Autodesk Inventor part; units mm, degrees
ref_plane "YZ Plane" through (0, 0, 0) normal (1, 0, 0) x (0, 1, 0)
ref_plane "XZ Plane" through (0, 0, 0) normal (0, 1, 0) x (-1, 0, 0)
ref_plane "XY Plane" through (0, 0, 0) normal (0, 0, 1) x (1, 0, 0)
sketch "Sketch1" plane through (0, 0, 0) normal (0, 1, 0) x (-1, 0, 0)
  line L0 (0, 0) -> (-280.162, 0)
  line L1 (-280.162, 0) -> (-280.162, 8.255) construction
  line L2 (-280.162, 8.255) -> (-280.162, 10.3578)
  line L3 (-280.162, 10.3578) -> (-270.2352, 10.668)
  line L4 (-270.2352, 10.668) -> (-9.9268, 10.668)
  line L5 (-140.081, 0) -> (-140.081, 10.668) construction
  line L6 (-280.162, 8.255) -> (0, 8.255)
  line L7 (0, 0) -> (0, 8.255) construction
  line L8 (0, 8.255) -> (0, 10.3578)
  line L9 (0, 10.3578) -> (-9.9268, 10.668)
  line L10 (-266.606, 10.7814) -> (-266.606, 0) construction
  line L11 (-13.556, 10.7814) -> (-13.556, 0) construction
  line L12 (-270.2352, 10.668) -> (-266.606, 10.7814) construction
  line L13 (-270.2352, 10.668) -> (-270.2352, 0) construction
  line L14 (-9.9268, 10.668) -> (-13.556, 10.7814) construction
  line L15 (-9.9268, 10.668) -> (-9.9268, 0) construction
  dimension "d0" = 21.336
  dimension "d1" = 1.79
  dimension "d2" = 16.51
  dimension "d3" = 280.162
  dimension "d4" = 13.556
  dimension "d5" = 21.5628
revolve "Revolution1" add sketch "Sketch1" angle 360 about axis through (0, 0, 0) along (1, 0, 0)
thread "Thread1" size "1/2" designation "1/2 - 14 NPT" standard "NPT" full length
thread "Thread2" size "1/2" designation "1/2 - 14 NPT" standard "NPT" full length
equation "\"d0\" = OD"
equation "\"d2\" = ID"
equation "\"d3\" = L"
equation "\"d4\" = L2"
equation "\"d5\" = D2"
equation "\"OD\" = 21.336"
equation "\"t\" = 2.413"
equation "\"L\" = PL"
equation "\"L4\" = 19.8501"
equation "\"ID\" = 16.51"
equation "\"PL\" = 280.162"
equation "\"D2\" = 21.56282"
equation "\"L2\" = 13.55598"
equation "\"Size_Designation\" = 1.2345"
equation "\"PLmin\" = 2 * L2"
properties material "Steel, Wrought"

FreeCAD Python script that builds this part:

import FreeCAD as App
import Part
import Sketcher

V = App.Vector
Q = App.Units.Quantity


def add_polygon(sketch, points):
    """Adds a closed chain of lines whose ends are joined by coincident constraints."""
    first, n = sketch.GeometryCount, len(points)
    for a, b in zip(points, points[1:] + points[:1]):
        sketch.addGeometry(Part.LineSegment(App.Vector(*a, 0), App.Vector(*b, 0)), False)
    for i in range(n):
        sketch.addConstraint(Sketcher.Constraint("Coincident", first + i, 2, first + (i + 1) % n, 1))

doc = App.newDocument("Part")
body = doc.addObject("PartDesign::Body", "Body")

sketch1 = body.newObject("Sketcher::SketchObject", "Sketch")
sketch1.AttachmentSupport = (doc.getObject("XZ_Plane"), [""])
sketch1.MapMode = "FlatFace"
add_polygon(sketch1, [(280.2, 10.4), (280.2, 8.3), (0, 8.3), (0, 10.4), (9.9, 10.7), (270.2, 10.7)])
sketch1.addConstraint([
    Sketcher.Constraint("Vertical", 0),
    Sketcher.Constraint("Horizontal", 1),
    Sketcher.Constraint("Vertical", 2),
    Sketcher.Constraint("Horizontal", 4),
    Sketcher.Constraint("PointOnObject", 1, 2, -2),
    Sketcher.Constraint("Horizontal", 2, 2, 5, 2),
    Sketcher.Constraint("Equal", 3, 5),
    Sketcher.Constraint("DistanceX", 1, 2, 1, 1, Q("11.03 in")),
    Sketcher.Constraint("Angle", 3, Q("1.7898 deg")),
    Sketcher.Constraint("DistanceY", -1, 1, 3, 2, Q("0.42 in")),
    Sketcher.Constraint("Distance", 3, Q("0.391 in")),
    Sketcher.Constraint("DistanceY", -1, 1, 0, 2, Q("0.325 in")),
])
revolution = body.newObject("PartDesign::Revolution", "Revolution")
revolution.Profile = sketch1
revolution.ReferenceAxis = (sketch1, ["H_Axis"])
revolution.Angle = 360

doc.recompute()
